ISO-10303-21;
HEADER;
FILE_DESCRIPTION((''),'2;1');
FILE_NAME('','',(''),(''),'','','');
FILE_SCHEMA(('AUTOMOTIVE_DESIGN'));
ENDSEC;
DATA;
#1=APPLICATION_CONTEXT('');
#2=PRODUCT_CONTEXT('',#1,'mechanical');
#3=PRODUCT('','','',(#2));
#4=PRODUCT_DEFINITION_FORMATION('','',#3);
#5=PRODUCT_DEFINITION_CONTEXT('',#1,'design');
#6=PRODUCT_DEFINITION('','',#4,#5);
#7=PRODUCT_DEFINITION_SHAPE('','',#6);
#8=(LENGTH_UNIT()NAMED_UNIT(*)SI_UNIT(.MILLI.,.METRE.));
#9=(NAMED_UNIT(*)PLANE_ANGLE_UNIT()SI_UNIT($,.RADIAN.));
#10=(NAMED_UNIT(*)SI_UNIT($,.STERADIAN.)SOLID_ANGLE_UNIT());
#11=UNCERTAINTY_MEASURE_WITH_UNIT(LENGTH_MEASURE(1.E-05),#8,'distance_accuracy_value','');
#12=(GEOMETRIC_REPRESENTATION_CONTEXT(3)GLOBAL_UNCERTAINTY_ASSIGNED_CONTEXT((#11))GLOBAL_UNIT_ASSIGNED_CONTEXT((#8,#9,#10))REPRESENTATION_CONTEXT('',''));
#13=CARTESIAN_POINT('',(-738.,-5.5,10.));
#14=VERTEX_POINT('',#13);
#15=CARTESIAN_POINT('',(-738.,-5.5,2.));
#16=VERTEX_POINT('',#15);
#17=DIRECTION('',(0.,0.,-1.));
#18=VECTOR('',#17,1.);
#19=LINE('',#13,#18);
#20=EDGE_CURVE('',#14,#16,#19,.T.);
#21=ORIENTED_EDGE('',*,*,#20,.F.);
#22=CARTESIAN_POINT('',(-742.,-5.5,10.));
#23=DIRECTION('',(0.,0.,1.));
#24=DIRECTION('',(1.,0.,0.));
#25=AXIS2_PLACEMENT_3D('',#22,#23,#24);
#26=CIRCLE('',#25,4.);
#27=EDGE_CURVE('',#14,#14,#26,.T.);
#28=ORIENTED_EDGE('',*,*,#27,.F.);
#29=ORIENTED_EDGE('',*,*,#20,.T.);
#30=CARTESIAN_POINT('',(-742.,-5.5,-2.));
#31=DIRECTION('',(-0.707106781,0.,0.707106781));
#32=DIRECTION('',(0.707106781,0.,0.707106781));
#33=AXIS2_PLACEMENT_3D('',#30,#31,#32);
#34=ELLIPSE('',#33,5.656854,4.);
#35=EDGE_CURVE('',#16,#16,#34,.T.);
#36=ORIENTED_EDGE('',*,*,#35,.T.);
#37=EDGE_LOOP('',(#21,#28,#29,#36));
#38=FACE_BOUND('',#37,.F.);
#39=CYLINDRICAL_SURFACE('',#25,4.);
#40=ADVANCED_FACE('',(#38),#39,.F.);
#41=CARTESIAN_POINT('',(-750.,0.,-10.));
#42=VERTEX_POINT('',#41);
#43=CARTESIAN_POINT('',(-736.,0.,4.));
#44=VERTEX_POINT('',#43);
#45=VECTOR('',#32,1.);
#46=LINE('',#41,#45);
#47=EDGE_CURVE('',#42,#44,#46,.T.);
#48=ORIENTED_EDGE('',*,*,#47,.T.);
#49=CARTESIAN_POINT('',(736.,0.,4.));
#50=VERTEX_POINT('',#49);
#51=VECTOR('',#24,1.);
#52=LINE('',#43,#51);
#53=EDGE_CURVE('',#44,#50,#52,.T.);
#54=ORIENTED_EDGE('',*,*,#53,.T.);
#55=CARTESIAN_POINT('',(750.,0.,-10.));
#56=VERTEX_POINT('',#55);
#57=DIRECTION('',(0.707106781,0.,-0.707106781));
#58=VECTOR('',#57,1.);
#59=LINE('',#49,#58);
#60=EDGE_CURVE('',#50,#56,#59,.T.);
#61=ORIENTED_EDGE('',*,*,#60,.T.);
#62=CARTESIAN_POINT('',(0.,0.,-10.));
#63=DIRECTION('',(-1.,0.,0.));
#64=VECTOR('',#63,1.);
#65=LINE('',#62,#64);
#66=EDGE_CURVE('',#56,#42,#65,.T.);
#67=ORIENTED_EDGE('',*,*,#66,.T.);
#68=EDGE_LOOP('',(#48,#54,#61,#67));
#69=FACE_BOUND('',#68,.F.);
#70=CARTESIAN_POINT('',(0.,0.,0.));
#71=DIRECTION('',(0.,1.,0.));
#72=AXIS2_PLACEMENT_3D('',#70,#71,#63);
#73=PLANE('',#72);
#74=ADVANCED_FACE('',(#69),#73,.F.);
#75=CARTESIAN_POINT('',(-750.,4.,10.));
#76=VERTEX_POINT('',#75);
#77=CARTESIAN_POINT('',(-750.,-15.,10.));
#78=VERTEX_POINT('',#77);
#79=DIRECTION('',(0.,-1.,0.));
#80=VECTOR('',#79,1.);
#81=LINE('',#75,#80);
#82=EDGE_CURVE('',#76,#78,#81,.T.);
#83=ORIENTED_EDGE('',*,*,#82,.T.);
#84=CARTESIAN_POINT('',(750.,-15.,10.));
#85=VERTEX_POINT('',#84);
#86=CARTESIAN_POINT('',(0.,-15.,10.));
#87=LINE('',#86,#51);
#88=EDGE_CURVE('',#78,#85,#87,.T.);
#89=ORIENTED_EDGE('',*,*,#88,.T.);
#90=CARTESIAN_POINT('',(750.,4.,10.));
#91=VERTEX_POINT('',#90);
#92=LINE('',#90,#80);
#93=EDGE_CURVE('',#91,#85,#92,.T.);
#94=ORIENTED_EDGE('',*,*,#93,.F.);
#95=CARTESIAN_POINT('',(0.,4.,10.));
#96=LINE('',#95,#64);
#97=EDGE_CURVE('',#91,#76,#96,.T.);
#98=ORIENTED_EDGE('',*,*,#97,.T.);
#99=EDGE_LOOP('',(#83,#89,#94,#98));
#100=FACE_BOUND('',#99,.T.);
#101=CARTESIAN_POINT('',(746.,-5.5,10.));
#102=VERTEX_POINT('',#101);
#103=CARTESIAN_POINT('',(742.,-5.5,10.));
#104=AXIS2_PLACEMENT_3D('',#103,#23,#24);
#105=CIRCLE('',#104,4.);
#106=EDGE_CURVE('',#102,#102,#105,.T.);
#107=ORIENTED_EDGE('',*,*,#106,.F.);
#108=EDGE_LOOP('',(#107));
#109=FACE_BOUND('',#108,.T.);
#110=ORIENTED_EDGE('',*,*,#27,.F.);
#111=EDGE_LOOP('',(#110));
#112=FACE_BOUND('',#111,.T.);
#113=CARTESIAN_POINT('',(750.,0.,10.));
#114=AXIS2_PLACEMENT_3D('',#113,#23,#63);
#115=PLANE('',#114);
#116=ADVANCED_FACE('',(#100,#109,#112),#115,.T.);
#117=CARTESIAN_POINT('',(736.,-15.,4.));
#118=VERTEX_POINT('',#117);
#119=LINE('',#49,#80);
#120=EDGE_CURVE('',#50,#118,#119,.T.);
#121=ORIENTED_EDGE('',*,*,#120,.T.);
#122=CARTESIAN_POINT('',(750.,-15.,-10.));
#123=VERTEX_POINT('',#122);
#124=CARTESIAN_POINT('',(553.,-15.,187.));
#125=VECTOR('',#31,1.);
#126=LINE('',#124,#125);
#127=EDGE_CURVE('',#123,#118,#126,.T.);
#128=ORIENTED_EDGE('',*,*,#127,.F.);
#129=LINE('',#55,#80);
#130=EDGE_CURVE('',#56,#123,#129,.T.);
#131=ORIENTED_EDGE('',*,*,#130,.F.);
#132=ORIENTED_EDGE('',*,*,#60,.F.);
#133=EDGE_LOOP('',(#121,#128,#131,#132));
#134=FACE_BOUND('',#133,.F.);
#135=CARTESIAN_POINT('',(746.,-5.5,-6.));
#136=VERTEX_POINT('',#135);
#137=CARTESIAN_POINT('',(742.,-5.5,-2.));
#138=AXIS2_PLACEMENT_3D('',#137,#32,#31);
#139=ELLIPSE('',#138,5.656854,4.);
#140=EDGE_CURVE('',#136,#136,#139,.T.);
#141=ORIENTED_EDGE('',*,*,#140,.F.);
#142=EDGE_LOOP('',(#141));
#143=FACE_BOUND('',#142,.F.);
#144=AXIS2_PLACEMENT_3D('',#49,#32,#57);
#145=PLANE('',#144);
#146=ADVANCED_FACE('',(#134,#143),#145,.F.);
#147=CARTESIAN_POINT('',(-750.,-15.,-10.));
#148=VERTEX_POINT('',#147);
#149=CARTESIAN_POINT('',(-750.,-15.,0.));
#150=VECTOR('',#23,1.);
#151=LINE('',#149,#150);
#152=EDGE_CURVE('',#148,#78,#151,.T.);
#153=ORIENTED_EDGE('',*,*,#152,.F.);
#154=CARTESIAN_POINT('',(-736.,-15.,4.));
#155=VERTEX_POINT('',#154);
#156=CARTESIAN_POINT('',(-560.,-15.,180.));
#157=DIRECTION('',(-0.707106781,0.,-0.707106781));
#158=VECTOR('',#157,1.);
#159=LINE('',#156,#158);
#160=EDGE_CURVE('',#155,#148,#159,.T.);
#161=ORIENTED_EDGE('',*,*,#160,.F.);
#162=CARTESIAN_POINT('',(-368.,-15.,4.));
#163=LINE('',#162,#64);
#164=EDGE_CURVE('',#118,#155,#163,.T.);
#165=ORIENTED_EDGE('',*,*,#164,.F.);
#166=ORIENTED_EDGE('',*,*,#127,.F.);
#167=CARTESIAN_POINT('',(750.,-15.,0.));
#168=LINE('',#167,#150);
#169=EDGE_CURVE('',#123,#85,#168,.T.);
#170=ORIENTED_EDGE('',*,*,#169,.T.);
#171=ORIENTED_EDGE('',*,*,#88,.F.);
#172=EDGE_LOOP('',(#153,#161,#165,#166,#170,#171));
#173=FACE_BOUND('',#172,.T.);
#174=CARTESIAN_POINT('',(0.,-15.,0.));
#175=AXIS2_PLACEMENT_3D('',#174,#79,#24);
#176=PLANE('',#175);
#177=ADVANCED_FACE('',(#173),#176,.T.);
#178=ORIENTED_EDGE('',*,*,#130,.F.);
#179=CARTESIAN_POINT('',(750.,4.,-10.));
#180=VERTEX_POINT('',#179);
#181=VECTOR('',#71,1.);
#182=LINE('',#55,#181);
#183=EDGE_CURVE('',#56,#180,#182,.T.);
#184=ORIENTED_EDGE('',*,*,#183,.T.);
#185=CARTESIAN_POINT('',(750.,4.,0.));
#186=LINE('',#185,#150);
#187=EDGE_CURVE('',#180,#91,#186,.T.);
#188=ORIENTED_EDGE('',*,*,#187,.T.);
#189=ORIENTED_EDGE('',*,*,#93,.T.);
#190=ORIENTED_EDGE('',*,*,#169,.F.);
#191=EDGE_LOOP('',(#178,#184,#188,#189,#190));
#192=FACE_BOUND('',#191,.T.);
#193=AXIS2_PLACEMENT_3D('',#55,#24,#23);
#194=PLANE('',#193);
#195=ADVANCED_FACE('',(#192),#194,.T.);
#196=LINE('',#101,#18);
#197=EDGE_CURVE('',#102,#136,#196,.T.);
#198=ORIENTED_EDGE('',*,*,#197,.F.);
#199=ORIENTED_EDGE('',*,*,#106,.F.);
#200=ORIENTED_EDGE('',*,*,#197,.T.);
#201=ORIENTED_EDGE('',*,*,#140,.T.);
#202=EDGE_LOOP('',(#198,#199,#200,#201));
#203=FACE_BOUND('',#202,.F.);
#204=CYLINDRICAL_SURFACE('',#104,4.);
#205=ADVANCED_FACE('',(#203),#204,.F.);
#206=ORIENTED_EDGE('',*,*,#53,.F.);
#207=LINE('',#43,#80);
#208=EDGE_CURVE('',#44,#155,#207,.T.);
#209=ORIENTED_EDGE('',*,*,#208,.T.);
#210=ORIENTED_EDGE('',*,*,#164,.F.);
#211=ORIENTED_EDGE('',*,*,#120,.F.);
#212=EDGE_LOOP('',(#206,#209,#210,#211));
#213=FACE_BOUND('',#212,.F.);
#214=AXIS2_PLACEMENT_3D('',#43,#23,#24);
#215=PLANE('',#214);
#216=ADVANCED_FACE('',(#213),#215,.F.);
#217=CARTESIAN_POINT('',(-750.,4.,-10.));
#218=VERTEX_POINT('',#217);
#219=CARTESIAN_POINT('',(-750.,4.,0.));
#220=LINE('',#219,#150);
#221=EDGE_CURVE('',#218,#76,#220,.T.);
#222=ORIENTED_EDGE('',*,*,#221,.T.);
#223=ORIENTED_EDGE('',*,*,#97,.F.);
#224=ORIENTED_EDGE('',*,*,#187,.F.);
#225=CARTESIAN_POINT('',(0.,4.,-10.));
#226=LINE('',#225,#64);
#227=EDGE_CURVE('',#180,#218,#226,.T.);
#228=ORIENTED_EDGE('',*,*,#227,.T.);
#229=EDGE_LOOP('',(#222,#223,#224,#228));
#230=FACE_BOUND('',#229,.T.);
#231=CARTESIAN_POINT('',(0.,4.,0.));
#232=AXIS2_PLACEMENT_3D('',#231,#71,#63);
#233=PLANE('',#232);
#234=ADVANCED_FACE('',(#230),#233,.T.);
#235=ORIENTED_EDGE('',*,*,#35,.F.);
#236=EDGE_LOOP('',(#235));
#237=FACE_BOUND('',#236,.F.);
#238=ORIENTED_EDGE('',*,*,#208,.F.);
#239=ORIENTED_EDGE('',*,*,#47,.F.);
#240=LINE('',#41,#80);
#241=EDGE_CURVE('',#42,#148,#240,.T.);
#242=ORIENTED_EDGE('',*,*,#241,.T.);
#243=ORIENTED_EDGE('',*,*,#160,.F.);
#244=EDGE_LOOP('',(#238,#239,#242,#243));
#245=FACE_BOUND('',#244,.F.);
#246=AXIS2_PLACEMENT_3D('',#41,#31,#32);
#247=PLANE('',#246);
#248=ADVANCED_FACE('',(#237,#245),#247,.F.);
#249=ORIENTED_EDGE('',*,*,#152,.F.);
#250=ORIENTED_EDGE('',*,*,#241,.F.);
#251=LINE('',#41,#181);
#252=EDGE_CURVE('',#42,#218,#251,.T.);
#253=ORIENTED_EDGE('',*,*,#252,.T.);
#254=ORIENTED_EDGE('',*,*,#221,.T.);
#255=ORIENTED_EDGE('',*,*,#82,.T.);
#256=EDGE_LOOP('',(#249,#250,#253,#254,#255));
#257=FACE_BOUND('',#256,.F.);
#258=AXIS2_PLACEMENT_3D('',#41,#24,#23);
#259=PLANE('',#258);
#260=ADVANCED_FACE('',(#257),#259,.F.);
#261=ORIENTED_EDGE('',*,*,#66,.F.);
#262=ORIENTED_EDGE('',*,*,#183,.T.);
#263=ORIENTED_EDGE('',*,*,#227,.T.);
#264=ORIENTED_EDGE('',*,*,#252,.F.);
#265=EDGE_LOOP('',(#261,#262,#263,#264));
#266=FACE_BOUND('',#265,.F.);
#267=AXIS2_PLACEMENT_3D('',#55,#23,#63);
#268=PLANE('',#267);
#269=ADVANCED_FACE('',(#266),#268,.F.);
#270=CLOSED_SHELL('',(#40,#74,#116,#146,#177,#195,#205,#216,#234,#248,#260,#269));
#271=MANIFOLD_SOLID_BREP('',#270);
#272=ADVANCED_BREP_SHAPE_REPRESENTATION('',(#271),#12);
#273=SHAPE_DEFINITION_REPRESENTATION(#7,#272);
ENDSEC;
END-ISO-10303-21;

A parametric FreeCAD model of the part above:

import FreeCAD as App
import Part
import Sketcher


def add_polygon(sketch, points):
    """Adds a closed chain of lines whose ends are joined by coincident constraints."""
    first, n = sketch.GeometryCount, len(points)
    for a, b in zip(points, points[1:] + points[:1]):
        sketch.addGeometry(Part.LineSegment(App.Vector(*a, 0), App.Vector(*b, 0)), False)
    for i in range(n):
        sketch.addConstraint(Sketcher.Constraint("Coincident", first + i, 2, first + (i + 1) % n, 1))

doc = App.newDocument("Part")
params = doc.addObject("Spreadsheet::Sheet", "Params")
for row, (alias, value) in enumerate([
    ("sketch1_width", "1500 mm"),
    ("sketch1_height", "20 mm"),
    ("pad1_length", "15 mm"),
    ("sketch2_width", "1500 mm"),
    ("sketch2_width2", "1472 mm"),
    ("pocket1_length", "25 mm"),
    ("sketch3_width", "1500 mm"),
    ("sketch3_height", "20 mm"),
    ("pad2_length", "4 mm"),
    ("sketch4_diameter", "8 mm"),
], start=1):
    params.set(f"A{row}", alias)
    params.set(f"B{row}", "=" + value)
    params.setAlias(f"B{row}", alias)

body = doc.addObject("PartDesign::Body", "Body")

# Sketch on XZ plane
sketch1 = doc.addObject("Sketcher::SketchObject", "Sketch")
body.addObject(sketch1)
sketch1.AttachmentSupport = (doc.XZ_Plane, [""])
sketch1.MapMode = "FlatFace"
add_polygon(sketch1, [(-750, 10), (-750, -10), (750, -10), (750, 10)])  # lines 0-3
sketch1.addConstraint([
    Sketcher.Constraint("Vertical", 0),
    Sketcher.Constraint("Horizontal", 1),
    Sketcher.Constraint("Vertical", 2),
    Sketcher.Constraint("Horizontal", 3),
    Sketcher.Constraint("Symmetric", 0, 2, 2, 2, -1, 1),
    Sketcher.Constraint("DistanceX", 1, 1, 1, 2, 1500.0),
    Sketcher.Constraint("DistanceY", 0, 2, 0, 1, 20.0),
])
sketch1.setExpression("Constraints[9]", "Params.sketch1_width")
sketch1.setExpression("Constraints[10]", "Params.sketch1_height")
pad1 = doc.addObject("PartDesign::Pad", "Pad")
body.addObject(pad1)
pad1.Profile = sketch1
pad1.setExpression("Length", "Params.pad1_length")

# Sketch on XZ plane
sketch2 = doc.addObject("Sketcher::SketchObject", "Sketch001")
body.addObject(sketch2)
sketch2.AttachmentSupport = (doc.XZ_Plane, [""])
sketch2.MapMode = "FlatFace"
add_polygon(sketch2, [(736, 4), (750, -10), (-750, -10), (-736, 4)])  # lines 0-3
sketch2.addConstraint([
    Sketcher.Constraint("Horizontal", 1),
    Sketcher.Constraint("Horizontal", 3),
    Sketcher.Constraint("Perpendicular", 0, 2),
    Sketcher.Constraint("Equal", 0, 2),
    Sketcher.Constraint("DistanceX", 1, 2, 1, 1, 1500.0),
    Sketcher.Constraint("DistanceX", 3, 1, 3, 2, 1472.0),
    Sketcher.Constraint("DistanceX", -1, 1, 0, 2, 750.0),
    Sketcher.Constraint("DistanceY", 0, 2, -1, 1, 10.0),
])
sketch2.setExpression("Constraints[8]", "Params.sketch2_width")
sketch2.setExpression("Constraints[9]", "Params.sketch2_width2")
pocket1 = doc.addObject("PartDesign::Pocket", "Pocket")
body.addObject(pocket1)
pocket1.Profile = sketch2
pocket1.setExpression("Length", "Params.pocket1_length")
pocket1.Reversed = True

# Sketch on XZ plane
sketch3 = doc.addObject("Sketcher::SketchObject", "Sketch002")
body.addObject(sketch3)
sketch3.AttachmentSupport = (doc.XZ_Plane, [""])
sketch3.MapMode = "FlatFace"
add_polygon(sketch3, [(750, 10), (750, -10), (-750, -10), (-750, 10)])  # lines 0-3
sketch3.addConstraint([
    Sketcher.Constraint("Vertical", 0),
    Sketcher.Constraint("Horizontal", 1),
    Sketcher.Constraint("Vertical", 2),
    Sketcher.Constraint("Horizontal", 3),
    Sketcher.Constraint("Symmetric", 0, 2, 2, 2, -1, 1),
    Sketcher.Constraint("DistanceX", 1, 2, 1, 1, 1500.0),
    Sketcher.Constraint("DistanceY", 0, 2, 0, 1, 20.0),
])
sketch3.setExpression("Constraints[9]", "Params.sketch3_width")
sketch3.setExpression("Constraints[10]", "Params.sketch3_height")
pad2 = doc.addObject("PartDesign::Pad", "Pad001")
body.addObject(pad2)
pad2.Profile = sketch3
pad2.setExpression("Length", "Params.pad2_length")
pad2.Reversed = True

# Sketch on XY plane
sketch4 = doc.addObject("Sketcher::SketchObject", "Sketch003")
body.addObject(sketch4)
sketch4.AttachmentSupport = (doc.XY_Plane, [""])
sketch4.MapMode = "FlatFace"
sketch4.AttachmentOffset = App.Placement(App.Vector(0, 0, 10), App.Rotation())
sketch4.addGeometry([
    Part.Circle(App.Vector(-742, -5.5, 0), App.Vector(0, 0, 1), 4),
    Part.Circle(App.Vector(742, -5.5, 0), App.Vector(0, 0, 1), 4),
], False)
sketch4.addConstraint([
    Sketcher.Constraint("Equal", 0, 1),
    Sketcher.Constraint("Symmetric", 0, 3, 1, 3, -2),
    Sketcher.Constraint("Diameter", 0, 8.0),
    Sketcher.Constraint("DistanceX", 0, 3, -1, 1, 742.0),
    Sketcher.Constraint("DistanceY", 0, 3, -1, 1, 5.5),
])
sketch4.setExpression("Constraints[2]", "Params.sketch4_diameter")
pocket2 = doc.addObject("PartDesign::Pocket", "Pocket001")
body.addObject(pocket2)
pocket2.Profile = sketch4
pocket2.Type = "ThroughAll"

doc.recompute()
